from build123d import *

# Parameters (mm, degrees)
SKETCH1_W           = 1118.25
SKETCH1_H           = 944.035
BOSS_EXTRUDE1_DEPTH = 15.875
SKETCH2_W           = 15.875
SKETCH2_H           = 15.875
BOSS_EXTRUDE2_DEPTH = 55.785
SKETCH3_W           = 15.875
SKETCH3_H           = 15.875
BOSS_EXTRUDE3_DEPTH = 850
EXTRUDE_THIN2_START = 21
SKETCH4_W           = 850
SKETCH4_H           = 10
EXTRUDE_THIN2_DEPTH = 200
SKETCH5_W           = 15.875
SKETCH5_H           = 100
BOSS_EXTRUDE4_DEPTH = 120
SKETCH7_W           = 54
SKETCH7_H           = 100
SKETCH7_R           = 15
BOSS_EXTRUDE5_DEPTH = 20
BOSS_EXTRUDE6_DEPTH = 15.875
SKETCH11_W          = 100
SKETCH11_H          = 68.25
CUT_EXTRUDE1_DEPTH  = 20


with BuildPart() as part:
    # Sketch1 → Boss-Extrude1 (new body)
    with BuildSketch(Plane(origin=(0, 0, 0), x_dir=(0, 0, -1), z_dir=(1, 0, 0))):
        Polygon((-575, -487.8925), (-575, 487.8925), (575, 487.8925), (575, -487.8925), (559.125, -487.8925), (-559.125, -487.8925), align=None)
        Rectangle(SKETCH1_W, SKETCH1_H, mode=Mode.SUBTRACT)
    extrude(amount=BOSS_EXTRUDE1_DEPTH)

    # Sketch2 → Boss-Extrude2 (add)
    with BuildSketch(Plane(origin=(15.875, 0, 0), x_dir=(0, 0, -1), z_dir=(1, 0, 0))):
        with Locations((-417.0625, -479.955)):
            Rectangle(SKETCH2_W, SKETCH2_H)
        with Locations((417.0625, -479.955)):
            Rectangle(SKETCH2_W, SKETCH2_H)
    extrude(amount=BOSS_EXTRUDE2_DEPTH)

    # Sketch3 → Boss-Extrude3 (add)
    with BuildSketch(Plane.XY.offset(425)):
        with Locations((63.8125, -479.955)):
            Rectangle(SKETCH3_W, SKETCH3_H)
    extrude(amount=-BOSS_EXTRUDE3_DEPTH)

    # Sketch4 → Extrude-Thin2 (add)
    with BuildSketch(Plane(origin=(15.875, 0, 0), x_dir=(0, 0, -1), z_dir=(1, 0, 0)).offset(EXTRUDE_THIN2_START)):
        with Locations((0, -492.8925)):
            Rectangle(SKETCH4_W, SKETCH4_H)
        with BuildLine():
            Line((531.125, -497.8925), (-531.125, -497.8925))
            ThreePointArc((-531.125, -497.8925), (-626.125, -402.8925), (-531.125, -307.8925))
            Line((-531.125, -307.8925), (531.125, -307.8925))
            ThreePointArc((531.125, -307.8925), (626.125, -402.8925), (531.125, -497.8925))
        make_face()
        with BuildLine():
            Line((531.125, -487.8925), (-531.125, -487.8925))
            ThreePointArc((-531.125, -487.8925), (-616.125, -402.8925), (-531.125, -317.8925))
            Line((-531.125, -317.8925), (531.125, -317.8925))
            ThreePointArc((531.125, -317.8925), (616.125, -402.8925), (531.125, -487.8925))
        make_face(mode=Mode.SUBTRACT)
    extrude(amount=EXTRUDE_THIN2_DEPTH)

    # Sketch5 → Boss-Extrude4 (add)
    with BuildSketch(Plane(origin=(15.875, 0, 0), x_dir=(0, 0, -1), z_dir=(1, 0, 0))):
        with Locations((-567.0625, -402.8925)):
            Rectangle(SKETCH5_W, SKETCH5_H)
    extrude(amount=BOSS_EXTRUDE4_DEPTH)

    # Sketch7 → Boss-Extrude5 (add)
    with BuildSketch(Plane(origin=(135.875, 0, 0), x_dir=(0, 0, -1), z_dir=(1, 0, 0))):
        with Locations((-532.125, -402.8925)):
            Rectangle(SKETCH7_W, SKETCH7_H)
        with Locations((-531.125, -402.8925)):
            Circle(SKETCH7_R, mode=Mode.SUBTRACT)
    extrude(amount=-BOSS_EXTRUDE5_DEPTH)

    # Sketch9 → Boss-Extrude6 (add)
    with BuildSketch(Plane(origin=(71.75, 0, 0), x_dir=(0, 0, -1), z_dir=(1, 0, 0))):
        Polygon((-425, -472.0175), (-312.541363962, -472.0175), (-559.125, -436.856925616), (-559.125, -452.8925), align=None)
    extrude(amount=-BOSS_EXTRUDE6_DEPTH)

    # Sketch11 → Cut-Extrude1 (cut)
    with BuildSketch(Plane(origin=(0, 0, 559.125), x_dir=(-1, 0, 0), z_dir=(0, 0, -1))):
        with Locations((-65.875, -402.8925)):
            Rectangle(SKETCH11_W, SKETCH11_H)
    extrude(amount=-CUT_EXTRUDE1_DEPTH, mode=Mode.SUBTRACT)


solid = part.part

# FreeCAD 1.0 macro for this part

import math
import FreeCAD as App
import Part
import Sketcher
from FreeCAD import Vector
Q = App.Units.Quantity

doc = App.newDocument("Part")
body = doc.addObject("PartDesign::Body", "Body")

# Sketch on YZ plane
sketch1 = body.newObject("Sketcher::SketchObject", "Sketch")
sketch1.AttachmentSupport = (doc.getObject("YZ_Plane"), [""])
sketch1.MapMode = "FlatFace"
sketch1.addGeometry(Part.LineSegment(Vector(487.8925, 575, 0), Vector(-487.8925, 575, 0)), False)
sketch1.addGeometry(Part.LineSegment(Vector(-487.8925, 575, 0), Vector(-487.8925, -575, 0)), False)
sketch1.addGeometry(Part.LineSegment(Vector(-487.8925, -575, 0), Vector(487.8925, -575, 0)), False)
sketch1.addGeometry(Part.LineSegment(Vector(487.8925, -575, 0), Vector(487.8925, 575, 0)), False)
sketch1.addGeometry(Part.LineSegment(Vector(-472.0175, 559.125, 0), Vector(472.0175, 559.125, 0)), False)
sketch1.addGeometry(Part.LineSegment(Vector(472.0175, 559.125, 0), Vector(472.0175, -559.125, 0)), False)
sketch1.addGeometry(Part.LineSegment(Vector(472.0175, -559.125, 0), Vector(-472.0175, -559.125, 0)), False)
sketch1.addGeometry(Part.LineSegment(Vector(-472.0175, -559.125, 0), Vector(-472.0175, 559.125, 0)), False)
sketch1.addConstraint(Sketcher.Constraint("Coincident", 0, 2, 1, 1))
sketch1.addConstraint(Sketcher.Constraint("Coincident", 1, 2, 2, 1))
sketch1.addConstraint(Sketcher.Constraint("Coincident", 2, 2, 3, 1))
sketch1.addConstraint(Sketcher.Constraint("Coincident", 3, 2, 0, 1))
sketch1.addConstraint(Sketcher.Constraint("Coincident", 4, 2, 5, 1))
sketch1.addConstraint(Sketcher.Constraint("Coincident", 5, 2, 6, 1))
sketch1.addConstraint(Sketcher.Constraint("Coincident", 6, 2, 7, 1))
sketch1.addConstraint(Sketcher.Constraint("Coincident", 7, 2, 4, 1))
sketch1.addConstraint(Sketcher.Constraint("Horizontal", 0))
sketch1.addConstraint(Sketcher.Constraint("Vertical", 1))
sketch1.addConstraint(Sketcher.Constraint("Horizontal", 2))
sketch1.addConstraint(Sketcher.Constraint("Vertical", 3))
sketch1.addConstraint(Sketcher.Constraint("Horizontal", 4))
sketch1.addConstraint(Sketcher.Constraint("Vertical", 5))
sketch1.addConstraint(Sketcher.Constraint("Horizontal", 6))
sketch1.addConstraint(Sketcher.Constraint("Vertical", 7))
sketch1.addConstraint(Sketcher.Constraint("Symmetric", 0, 2, 2, 2, -1, 1))
sketch1.addConstraint(Sketcher.Constraint("Symmetric", 4, 2, 6, 2, -1, 1))
sketch1.addConstraint(Sketcher.Constraint("DistanceY", 1, 2, 1, 1, Q("1150 mm")))
sketch1.addConstraint(Sketcher.Constraint("DistanceY", 5, 2, 5, 1, Q("1118.25 mm")))
sketch1.addConstraint(Sketcher.Constraint("DistanceX", 0, 2, 0, 1, Q("975.785 mm")))
sketch1.addConstraint(Sketcher.Constraint("DistanceX", 4, 1, 4, 2, Q("944.035 mm")))
pad1 = body.newObject("PartDesign::Pad", "Pad")
pad1.Profile = sketch1
pad1.Length = 15.875

# Sketch on YZ plane
sketch2 = body.newObject("Sketcher::SketchObject", "Sketch001")
sketch2.AttachmentSupport = (doc.getObject("YZ_Plane"), [""])
sketch2.MapMode = "FlatFace"
sketch2.AttachmentOffset = App.Placement(Vector(0, 0, 15.875), App.Rotation())
sketch2.addGeometry(Part.LineSegment(Vector(-472.0175, 425, 0), Vector(-487.8925, 425, 0)), False)
sketch2.addGeometry(Part.LineSegment(Vector(-487.8925, 425, 0), Vector(-487.8925, 409.125, 0)), False)
sketch2.addGeometry(Part.LineSegment(Vector(-487.8925, 409.125, 0), Vector(-472.0175, 409.125, 0)), False)
sketch2.addGeometry(Part.LineSegment(Vector(-472.0175, 409.125, 0), Vector(-472.0175, 425, 0)), False)
sketch2.addGeometry(Part.LineSegment(Vector(-472.0175, -409.125, 0), Vector(-487.8925, -409.125, 0)), False)
sketch2.addGeometry(Part.LineSegment(Vector(-487.8925, -409.125, 0), Vector(-487.8925, -425, 0)), False)
sketch2.addGeometry(Part.LineSegment(Vector(-487.8925, -425, 0), Vector(-472.0175, -425, 0)), False)
sketch2.addGeometry(Part.LineSegment(Vector(-472.0175, -425, 0), Vector(-472.0175, -409.125, 0)), False)
sketch2.addConstraint(Sketcher.Constraint("Coincident", 0, 2, 1, 1))
sketch2.addConstraint(Sketcher.Constraint("Coincident", 1, 2, 2, 1))
sketch2.addConstraint(Sketcher.Constraint("Coincident", 2, 2, 3, 1))
sketch2.addConstraint(Sketcher.Constraint("Coincident", 3, 2, 0, 1))
sketch2.addConstraint(Sketcher.Constraint("Coincident", 4, 2, 5, 1))
sketch2.addConstraint(Sketcher.Constraint("Coincident", 5, 2, 6, 1))
sketch2.addConstraint(Sketcher.Constraint("Coincident", 6, 2, 7, 1))
sketch2.addConstraint(Sketcher.Constraint("Coincident", 7, 2, 4, 1))
sketch2.addConstraint(Sketcher.Constraint("Horizontal", 0))
sketch2.addConstraint(Sketcher.Constraint("Vertical", 1))
sketch2.addConstraint(Sketcher.Constraint("Horizontal", 2))
sketch2.addConstraint(Sketcher.Constraint("Vertical", 3))
sketch2.addConstraint(Sketcher.Constraint("Horizontal", 4))
sketch2.addConstraint(Sketcher.Constraint("Vertical", 5))
sketch2.addConstraint(Sketcher.Constraint("Horizontal", 6))
sketch2.addConstraint(Sketcher.Constraint("Vertical", 7))
sketch2.addConstraint(Sketcher.Constraint("Symmetric", 1, 2, 4, 2, -1))
sketch2.addConstraint(Sketcher.Constraint("Symmetric", 3, 2, 6, 2, -1))
sketch2.addConstraint(Sketcher.Constraint("Equal", 6, 1))
sketch2.addConstraint(Sketcher.Constraint("DistanceY", -1, 1, 0, 2, Q("425 mm")))
sketch2.addConstraint(Sketcher.Constraint("DistanceX", 0, 2, 0, 1, Q("15.875 mm")))
sketch2.addConstraint(Sketcher.Constraint("DistanceX", 0, 2, -1, 1, Q("487.8925 mm")))
pad2 = body.newObject("PartDesign::Pad", "Pad001")
pad2.Profile = sketch2
pad2.Length = 55.785

# Sketch on XY plane
sketch3 = body.newObject("Sketcher::SketchObject", "Sketch002")
sketch3.AttachmentSupport = (doc.getObject("XY_Plane"), [""])
sketch3.MapMode = "FlatFace"
sketch3.AttachmentOffset = App.Placement(Vector(0, 0, 425), App.Rotation())
sketch3.addGeometry(Part.LineSegment(Vector(55.875, -472.0175, 0), Vector(55.875, -487.8925, 0)), False)
sketch3.addGeometry(Part.LineSegment(Vector(55.875, -487.8925, 0), Vector(71.75, -487.8925, 0)), False)
sketch3.addGeometry(Part.LineSegment(Vector(71.75, -487.8925, 0), Vector(71.75, -472.0175, 0)), False)
sketch3.addGeometry(Part.LineSegment(Vector(71.75, -472.0175, 0), Vector(55.875, -472.0175, 0)), False)
sketch3.addConstraint(Sketcher.Constraint("Coincident", 0, 2, 1, 1))
sketch3.addConstraint(Sketcher.Constraint("Coincident", 1, 2, 2, 1))
sketch3.addConstraint(Sketcher.Constraint("Coincident", 2, 2, 3, 1))
sketch3.addConstraint(Sketcher.Constraint("Coincident", 3, 2, 0, 1))
sketch3.addConstraint(Sketcher.Constraint("Vertical", 0))
sketch3.addConstraint(Sketcher.Constraint("Horizontal", 1))
sketch3.addConstraint(Sketcher.Constraint("Vertical", 2))
sketch3.addConstraint(Sketcher.Constraint("Horizontal", 3))
sketch3.addConstraint(Sketcher.Constraint("Equal", 3, 0))
sketch3.addConstraint(Sketcher.Constraint("DistanceX", 1, 1, 1, 2, Q("15.875 mm")))
sketch3.addConstraint(Sketcher.Constraint("DistanceX", -1, 1, 1, 2, Q("71.75 mm")))
sketch3.addConstraint(Sketcher.Constraint("DistanceY", 0, 2, -1, 1, Q("487.8925 mm")))
pad3 = body.newObject("PartDesign::Pad", "Pad002")
pad3.Profile = sketch3
pad3.Length = 850
pad3.Reversed = True

# Sketch on YZ plane
sketch4 = body.newObject("Sketcher::SketchObject", "Sketch003")
sketch4.AttachmentSupport = (doc.getObject("YZ_Plane"), [""])
sketch4.MapMode = "FlatFace"
sketch4.AttachmentOffset = App.Placement(Vector(0, 0, 36.875), App.Rotation())
sketch4.addGeometry(Part.ArcOfCircle(Part.Circle(Vector(-402.8925, -531.125, 0), Vector(0, 0, 1), 95), math.radians(180), math.radians(360)), False)
sketch4.addGeometry(Part.LineSegment(Vector(-307.8925, -531.125, 0), Vector(-307.8925, 531.125, 0)), False)
sketch4.addGeometry(Part.ArcOfCircle(Part.Circle(Vector(-402.8925, 531.125, 0), Vector(0, 0, 1), 95), math.radians(0), math.radians(180)), False)
sketch4.addGeometry(Part.LineSegment(Vector(-497.8925, 531.125, 0), Vector(-497.8925, -531.125, 0)), False)
sketch4.addGeometry(Part.ArcOfCircle(Part.Circle(Vector(-402.8925, -531.125, 0), Vector(0, 0, 1), 85), math.radians(180), math.radians(360)), False)
sketch4.addGeometry(Part.LineSegment(Vector(-487.8925, -531.125, 0), Vector(-487.8925, 531.125, 0)), False)
sketch4.addGeometry(Part.ArcOfCircle(Part.Circle(Vector(-402.8925, 531.125, 0), Vector(0, 0, 1), 85), math.radians(0), math.radians(180)), False)
sketch4.addGeometry(Part.LineSegment(Vector(-317.8925, 531.125, 0), Vector(-317.8925, -531.125, 0)), False)
sketch4.addConstraint(Sketcher.Constraint("Tangent", 0, 2, 1, 1))
sketch4.addConstraint(Sketcher.Constraint("Tangent", 1, 2, 2, 1))
sketch4.addConstraint(Sketcher.Constraint("Tangent", 2, 2, 3, 1))
sketch4.addConstraint(Sketcher.Constraint("Tangent", 3, 2, 0, 1))
sketch4.addConstraint(Sketcher.Constraint("Tangent", 4, 1, 5, 1))
sketch4.addConstraint(Sketcher.Constraint("Tangent", 5, 2, 6, 2))
sketch4.addConstraint(Sketcher.Constraint("Tangent", 6, 1, 7, 1))
sketch4.addConstraint(Sketcher.Constraint("Tangent", 7, 2, 4, 2))
sketch4.addConstraint(Sketcher.Constraint("Vertical", 1))
sketch4.addConstraint(Sketcher.Constraint("Vertical", 3))
sketch4.addConstraint(Sketcher.Constraint("Vertical", 5))
sketch4.addConstraint(Sketcher.Constraint("Vertical", 7))
sketch4.addConstraint(Sketcher.Constraint("Coincident", 4, 3, 0, 3))
sketch4.addConstraint(Sketcher.Constraint("Horizontal", 6, 3, 1, 2))
sketch4.addConstraint(Sketcher.Constraint("Radius", 0, Q("95 mm")))
sketch4.addConstraint(Sketcher.Constraint("Radius", 4, Q("85 mm")))
sketch4.addConstraint(Sketcher.Constraint("DistanceY", 1, 1, 1, 2, Q("1062.25 mm")))
sketch4.addConstraint(Sketcher.Constraint("DistanceY", 0, 3, -1, 1, Q("531.125 mm")))
sketch4.addConstraint(Sketcher.Constraint("DistanceX", 0, 3, -1, 1, Q("402.8925 mm")))
pad4 = body.newObject("PartDesign::Pad", "Pad003")
pad4.Profile = sketch4
pad4.Length = 200

# Sketch on YZ plane
sketch5 = body.newObject("Sketcher::SketchObject", "Sketch004")
sketch5.AttachmentSupport = (doc.getObject("YZ_Plane"), [""])
sketch5.MapMode = "FlatFace"
sketch5.AttachmentOffset = App.Placement(Vector(0, 0, 15.875), App.Rotation())
sketch5.addGeometry(Part.LineSegment(Vector(-352.8925, 575, 0), Vector(-452.8925, 575, 0)), False)
sketch5.addGeometry(Part.LineSegment(Vector(-452.8925, 575, 0), Vector(-452.8925, 559.125, 0)), False)
sketch5.addGeometry(Part.LineSegment(Vector(-452.8925, 559.125, 0), Vector(-352.8925, 559.125, 0)), False)
sketch5.addGeometry(Part.LineSegment(Vector(-352.8925, 559.125, 0), Vector(-352.8925, 575, 0)), False)
sketch5.addConstraint(Sketcher.Constraint("Coincident", 0, 2, 1, 1))
sketch5.addConstraint(Sketcher.Constraint("Coincident", 1, 2, 2, 1))
sketch5.addConstraint(Sketcher.Constraint("Coincident", 2, 2, 3, 1))
sketch5.addConstraint(Sketcher.Constraint("Coincident", 3, 2, 0, 1))
sketch5.addConstraint(Sketcher.Constraint("Horizontal", 0))
sketch5.addConstraint(Sketcher.Constraint("Vertical", 1))
sketch5.addConstraint(Sketcher.Constraint("Horizontal", 2))
sketch5.addConstraint(Sketcher.Constraint("Vertical", 3))
sketch5.addConstraint(Sketcher.Constraint("DistanceX", 0, 2, 0, 1, Q("100 mm")))
sketch5.addConstraint(Sketcher.Constraint("DistanceY", -1, 1, 0, 2, Q("575 mm")))
sketch5.addConstraint(Sketcher.Constraint("DistanceY", 1, 2, 1, 1, Q("15.875 mm")))
sketch5.addConstraint(Sketcher.Constraint("DistanceX", 0, 2, -1, 1, Q("452.8925 mm")))
pad5 = body.newObject("PartDesign::Pad", "Pad004")
pad5.Profile = sketch5
pad5.Length = 120

# Sketch on YZ plane
sketch6 = body.newObject("Sketcher::SketchObject", "Sketch005")
sketch6.AttachmentSupport = (doc.getObject("YZ_Plane"), [""])
sketch6.MapMode = "FlatFace"
sketch6.AttachmentOffset = App.Placement(Vector(0, 0, 135.875), App.Rotation())
sketch6.addGeometry(Part.LineSegment(Vector(-352.8925, 559.125, 0), Vector(-452.8925, 559.125, 0)), False)
sketch6.addGeometry(Part.LineSegment(Vector(-452.8925, 559.125, 0), Vector(-452.8925, 505.125, 0)), False)
sketch6.addGeometry(Part.LineSegment(Vector(-452.8925, 505.125, 0), Vector(-352.8925, 505.125, 0)), False)
sketch6.addGeometry(Part.LineSegment(Vector(-352.8925, 505.125, 0), Vector(-352.8925, 559.125, 0)), False)
sketch6.addGeometry(Part.Circle(Vector(-402.8925, 531.125, 0), Vector(0, 0, 1), 15), False)
sketch6.addConstraint(Sketcher.Constraint("Coincident", 0, 2, 1, 1))
sketch6.addConstraint(Sketcher.Constraint("Coincident", 1, 2, 2, 1))
sketch6.addConstraint(Sketcher.Constraint("Coincident", 2, 2, 3, 1))
sketch6.addConstraint(Sketcher.Constraint("Coincident", 3, 2, 0, 1))
sketch6.addConstraint(Sketcher.Constraint("Horizontal", 0))
sketch6.addConstraint(Sketcher.Constraint("Vertical", 1))
sketch6.addConstraint(Sketcher.Constraint("Horizontal", 2))
sketch6.addConstraint(Sketcher.Constraint("Vertical", 3))
sketch6.addConstraint(Sketcher.Constraint("Diameter", 4, Q("30 mm")))
sketch6.addConstraint(Sketcher.Constraint("DistanceX", 0, 2, 0, 1, Q("100 mm")))
sketch6.addConstraint(Sketcher.Constraint("DistanceY", 1, 2, 1, 1, Q("54 mm")))
sketch6.addConstraint(Sketcher.Constraint("DistanceX", 0, 2, 4, 3, Q("50 mm")))
sketch6.addConstraint(Sketcher.Constraint("DistanceY", 4, 3, 0, 2, Q("28 mm")))
sketch6.addConstraint(Sketcher.Constraint("DistanceY", -1, 1, 4, 3, Q("531.125 mm")))
sketch6.addConstraint(Sketcher.Constraint("DistanceX", 4, 3, -1, 1, Q("402.8925 mm")))
pad6 = body.newObject("PartDesign::Pad", "Pad005")
pad6.Profile = sketch6
pad6.Length = 20
pad6.Reversed = True

# Sketch on YZ plane
sketch7 = body.newObject("Sketcher::SketchObject", "Sketch006")
sketch7.AttachmentSupport = (doc.getObject("YZ_Plane"), [""])
sketch7.MapMode = "FlatFace"
sketch7.AttachmentOffset = App.Placement(Vector(0, 0, 71.75), App.Rotation())
sketch7.addGeometry(Part.LineSegment(Vector(-472.0175, 425, 0), Vector(-472.0175, 312.541364, 0)), False)
sketch7.addGeometry(Part.LineSegment(Vector(-472.0175, 312.541364, 0), Vector(-436.856926, 559.125, 0)), False)
sketch7.addGeometry(Part.LineSegment(Vector(-436.856926, 559.125, 0), Vector(-452.8925, 559.125, 0)), False)
sketch7.addGeometry(Part.LineSegment(Vector(-452.8925, 559.125, 0), Vector(-472.0175, 425, 0)), False)
sketch7.addConstraint(Sketcher.Constraint("Coincident", 0, 2, 1, 1))
sketch7.addConstraint(Sketcher.Constraint("Coincident", 1, 2, 2, 1))
sketch7.addConstraint(Sketcher.Constraint("Coincident", 2, 2, 3, 1))
sketch7.addConstraint(Sketcher.Constraint("Coincident", 3, 2, 0, 1))
sketch7.addConstraint(Sketcher.Constraint("Vertical", 0))
sketch7.addConstraint(Sketcher.Constraint("Horizontal", 2))
sketch7.addConstraint(Sketcher.Constraint("Parallel", 1, 3))
sketch7.addConstraint(Sketcher.Constraint("DistanceY", -1, 1, 3, 2, Q("425 mm")))
sketch7.addConstraint(Sketcher.Constraint("DistanceY", -1, 1, 1, 2, Q("559.125 mm")))
sketch7.addConstraint(Sketcher.Constraint("DistanceX", 0, 2, 2, 2, Q("19.125 mm")))
sketch7.addConstraint(Sketcher.Constraint("DistanceX", 0, 2, -1, 1, Q("472.0175 mm")))
sketch7.addConstraint(Sketcher.Constraint("Distance", 1, Q("249.07781 mm")))
pad7 = body.newObject("PartDesign::Pad", "Pad006")
pad7.Profile = sketch7
pad7.Length = 15.875
pad7.Reversed = True

# Sketch on XY plane
sketch8 = body.newObject("Sketcher::SketchObject", "Sketch007")
sketch8.AttachmentSupport = (doc.getObject("XY_Plane"), [""])
sketch8.MapMode = "FlatFace"
sketch8.AttachmentOffset = App.Placement(Vector(0, 0, 559.125), App.Rotation())
sketch8.addGeometry(Part.LineSegment(Vector(115.875, -368.7675, 0), Vector(115.875, -437.0175, 0)), False)
sketch8.addGeometry(Part.LineSegment(Vector(115.875, -437.0175, 0), Vector(15.875, -437.0175, 0)), False)
sketch8.addGeometry(Part.LineSegment(Vector(15.875, -437.0175, 0), Vector(15.875, -368.7675, 0)), False)
sketch8.addGeometry(Part.LineSegment(Vector(15.875, -368.7675, 0), Vector(115.875, -368.7675, 0)), False)
sketch8.addConstraint(Sketcher.Constraint("Coincident", 0, 2, 1, 1))
sketch8.addConstraint(Sketcher.Constraint("Coincident", 1, 2, 2, 1))
sketch8.addConstraint(Sketcher.Constraint("Coincident", 2, 2, 3, 1))
sketch8.addConstraint(Sketcher.Constraint("Coincident", 3, 2, 0, 1))
sketch8.addConstraint(Sketcher.Constraint("Vertical", 0))
sketch8.addConstraint(Sketcher.Constraint("Horizontal", 1))
sketch8.addConstraint(Sketcher.Constraint("Vertical", 2))
sketch8.addConstraint(Sketcher.Constraint("Horizontal", 3))
sketch8.addConstraint(Sketcher.Constraint("DistanceX", 1, 2, 1, 1, Q("100 mm")))
sketch8.addConstraint(Sketcher.Constraint("DistanceY", 0, 2, 0, 1, Q("68.25 mm")))
sketch8.addConstraint(Sketcher.Constraint("DistanceX", -1, 1, 0, 2, Q("115.875 mm")))
sketch8.addConstraint(Sketcher.Constraint("DistanceY", 0, 2, -1, 1, Q("437.0175 mm")))
pocket1 = body.newObject("PartDesign::Pocket", "Pocket")
pocket1.Profile = sketch8
pocket1.Length = 20
pocket1.Reversed = True

doc.recompute()
